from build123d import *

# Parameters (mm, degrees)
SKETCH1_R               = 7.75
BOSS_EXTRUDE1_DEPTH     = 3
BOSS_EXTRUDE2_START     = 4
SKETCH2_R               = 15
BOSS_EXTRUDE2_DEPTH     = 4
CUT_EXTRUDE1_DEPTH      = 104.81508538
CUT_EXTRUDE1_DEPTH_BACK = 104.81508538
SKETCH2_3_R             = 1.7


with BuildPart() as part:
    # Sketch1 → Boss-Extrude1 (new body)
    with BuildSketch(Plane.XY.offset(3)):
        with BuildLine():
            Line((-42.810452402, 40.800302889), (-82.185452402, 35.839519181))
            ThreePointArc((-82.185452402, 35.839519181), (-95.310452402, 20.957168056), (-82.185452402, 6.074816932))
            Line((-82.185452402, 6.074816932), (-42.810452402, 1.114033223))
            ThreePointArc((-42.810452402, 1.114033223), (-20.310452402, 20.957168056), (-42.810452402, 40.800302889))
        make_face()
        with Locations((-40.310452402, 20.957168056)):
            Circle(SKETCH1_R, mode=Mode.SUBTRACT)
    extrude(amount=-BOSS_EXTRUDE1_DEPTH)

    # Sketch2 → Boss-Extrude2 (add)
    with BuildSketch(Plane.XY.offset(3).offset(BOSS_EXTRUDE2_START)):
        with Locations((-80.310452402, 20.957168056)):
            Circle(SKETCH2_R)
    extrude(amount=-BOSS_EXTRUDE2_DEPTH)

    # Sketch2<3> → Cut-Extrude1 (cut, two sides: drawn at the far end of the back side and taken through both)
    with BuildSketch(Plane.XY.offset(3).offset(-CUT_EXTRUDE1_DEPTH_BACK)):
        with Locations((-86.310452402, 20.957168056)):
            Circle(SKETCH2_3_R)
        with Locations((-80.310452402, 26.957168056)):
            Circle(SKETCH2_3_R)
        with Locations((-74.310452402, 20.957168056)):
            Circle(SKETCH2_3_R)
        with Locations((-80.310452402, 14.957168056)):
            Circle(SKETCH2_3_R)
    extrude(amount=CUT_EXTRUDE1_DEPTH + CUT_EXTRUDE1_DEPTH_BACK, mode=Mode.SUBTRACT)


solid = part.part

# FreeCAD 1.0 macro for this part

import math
import FreeCAD as App
import Part
import Sketcher

V = App.Vector

doc = App.newDocument("Part")
body = doc.addObject("PartDesign::Body", "Body")

# Sketch on XY plane
sketch1 = body.newObject("Sketcher::SketchObject", "Sketch")
sketch1.AttachmentSupport = (doc.getObject("XY_Plane"), [""])
sketch1.MapMode = "FlatFace"
sketch1.AttachmentOffset = App.Placement(V(0, 0, 3), App.Rotation())
sketch1.addGeometry([
    Part.LineSegment(V(-43, 41, 0), V(-82, 36, 0)),  # 0
    Part.ArcOfCircle(Part.Circle(V(-80, 21, 0), V(0, 0, 1), 15), math.radians(97), math.radians(263)),  # 1
    Part.LineSegment(V(-82, 6, 0), V(-43, 1, 0)),  # 2
    Part.ArcOfCircle(Part.Circle(V(-40, 21, 0), V(0, 0, 1), 20), math.radians(-97), math.radians(97)),  # 3
    Part.Circle(V(-40, 21, 0), V(0, 0, 1), 8),  # 4
], False)
sketch1.addConstraint([
    Sketcher.Constraint("Tangent", 0, 2, 1, 1),
    Sketcher.Constraint("Tangent", 1, 2, 2, 1),
    Sketcher.Constraint("Tangent", 2, 2, 3, 1),
    Sketcher.Constraint("Tangent", 3, 2, 0, 1),
    Sketcher.Constraint("Coincident", 4, 3, 3, 3),
    Sketcher.Constraint("Horizontal", 1, 3, 3, 3),
    Sketcher.Constraint("Radius", 1, 15.0),
    Sketcher.Constraint("Radius", 3, 20.0),
    Sketcher.Constraint("Diameter", 4, 15.5),
    Sketcher.Constraint("DistanceX", 1, 3, 3, 3, 40.0),
    Sketcher.Constraint("DistanceY", -1, 1, 1, 3, 20.957168),
    Sketcher.Constraint("DistanceX", 1, 3, -1, 1, 80.310452),
])
pad1 = body.newObject("PartDesign::Pad", "Pad")
pad1.Profile = sketch1
pad1.Length = 3
pad1.Reversed = True

# Sketch on XY plane
sketch2 = body.newObject("Sketcher::SketchObject", "Sketch001")
sketch2.AttachmentSupport = (doc.getObject("XY_Plane"), [""])
sketch2.MapMode = "FlatFace"
sketch2.AttachmentOffset = App.Placement(V(0, 0, 7), App.Rotation())
sketch2.addGeometry(Part.Circle(V(-80, 21, 0), V(0, 0, 1), 15), False)
sketch2.addConstraint([
    Sketcher.Constraint("Diameter", 0, 30.0),
    Sketcher.Constraint("DistanceY", -1, 1, 0, 3, 20.957168),
    Sketcher.Constraint("DistanceX", 0, 3, -1, 1, 80.310452),
])
pad2 = body.newObject("PartDesign::Pad", "Pad001")
pad2.Profile = sketch2
pad2.Length = 4
pad2.Reversed = True

# Sketch on XY plane
sketch3 = body.newObject("Sketcher::SketchObject", "Sketch002")
sketch3.AttachmentSupport = (doc.getObject("XY_Plane"), [""])
sketch3.MapMode = "FlatFace"
sketch3.AttachmentOffset = App.Placement(V(0, 0, 3), App.Rotation())
sketch3.addGeometry([
    Part.Circle(V(-86.3, 21, 0), V(0, 0, 1), 1.7),
    Part.Circle(V(-80.3, 27, 0), V(0, 0, 1), 1.7),
    Part.Circle(V(-74.3, 21, 0), V(0, 0, 1), 1.7),
    Part.Circle(V(-80.3, 15, 0), V(0, 0, 1), 1.7),
], False)
sketch3.addConstraint([
    Sketcher.Constraint("Equal", 0, 1),
    Sketcher.Constraint("Equal", 1, 2),
    Sketcher.Constraint("Equal", 2, 3),
    Sketcher.Constraint("Horizontal", 0, 3, 2, 3),
    Sketcher.Constraint("Vertical", 1, 3, 3, 3),
    Sketcher.Constraint("Diameter", 0, 3.4),
    Sketcher.Constraint("DistanceX", 0, 3, 1, 3, 6.0),
    Sketcher.Constraint("DistanceY", 0, 3, 1, 3, 6.0),
    Sketcher.Constraint("DistanceX", 1, 3, 2, 3, 6.0),
    Sketcher.Constraint("DistanceY", 3, 3, 0, 3, 6.0),
    Sketcher.Constraint("DistanceY", -1, 1, 0, 3, 20.957168),
    Sketcher.Constraint("DistanceX", 0, 3, -1, 1, 86.310452),
])
pocket1 = body.newObject("PartDesign::Pocket", "Pocket")
pocket1.Profile = sketch3
pocket1.Type = "ThroughAll"
pocket1.Midplane = True

doc.recompute()
